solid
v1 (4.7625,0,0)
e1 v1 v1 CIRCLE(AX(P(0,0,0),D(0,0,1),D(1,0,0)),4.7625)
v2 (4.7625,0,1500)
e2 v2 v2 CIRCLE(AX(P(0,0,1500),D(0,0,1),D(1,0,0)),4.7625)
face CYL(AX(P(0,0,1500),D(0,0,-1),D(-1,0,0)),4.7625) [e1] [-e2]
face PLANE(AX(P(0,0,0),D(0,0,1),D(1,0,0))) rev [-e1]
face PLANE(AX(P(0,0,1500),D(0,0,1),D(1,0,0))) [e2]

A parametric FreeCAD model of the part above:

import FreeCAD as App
import Part
import Sketcher
from FreeCAD import Vector
Q = App.Units.Quantity

doc = App.newDocument("Part")
body = doc.addObject("PartDesign::Body", "Body")

sketch1 = body.newObject("Sketcher::SketchObject", "Sketch")
sketch1.AttachmentSupport = (doc.getObject("XY_Plane"), [""])
sketch1.MapMode = "FlatFace"
sketch1.addGeometry(Part.Circle(Vector(0, 0, 0), Vector(0, 0, 1), 4.8), False)
sketch1.addConstraint([
    Sketcher.Constraint("Coincident", 0, 3, -1, 1),
    Sketcher.Constraint("Diameter", 0, Q("9.525 mm")),
])
pad1 = body.newObject("PartDesign::Pad", "Pad")
pad1.Profile = sketch1
pad1.Length = 1500

doc.recompute()
